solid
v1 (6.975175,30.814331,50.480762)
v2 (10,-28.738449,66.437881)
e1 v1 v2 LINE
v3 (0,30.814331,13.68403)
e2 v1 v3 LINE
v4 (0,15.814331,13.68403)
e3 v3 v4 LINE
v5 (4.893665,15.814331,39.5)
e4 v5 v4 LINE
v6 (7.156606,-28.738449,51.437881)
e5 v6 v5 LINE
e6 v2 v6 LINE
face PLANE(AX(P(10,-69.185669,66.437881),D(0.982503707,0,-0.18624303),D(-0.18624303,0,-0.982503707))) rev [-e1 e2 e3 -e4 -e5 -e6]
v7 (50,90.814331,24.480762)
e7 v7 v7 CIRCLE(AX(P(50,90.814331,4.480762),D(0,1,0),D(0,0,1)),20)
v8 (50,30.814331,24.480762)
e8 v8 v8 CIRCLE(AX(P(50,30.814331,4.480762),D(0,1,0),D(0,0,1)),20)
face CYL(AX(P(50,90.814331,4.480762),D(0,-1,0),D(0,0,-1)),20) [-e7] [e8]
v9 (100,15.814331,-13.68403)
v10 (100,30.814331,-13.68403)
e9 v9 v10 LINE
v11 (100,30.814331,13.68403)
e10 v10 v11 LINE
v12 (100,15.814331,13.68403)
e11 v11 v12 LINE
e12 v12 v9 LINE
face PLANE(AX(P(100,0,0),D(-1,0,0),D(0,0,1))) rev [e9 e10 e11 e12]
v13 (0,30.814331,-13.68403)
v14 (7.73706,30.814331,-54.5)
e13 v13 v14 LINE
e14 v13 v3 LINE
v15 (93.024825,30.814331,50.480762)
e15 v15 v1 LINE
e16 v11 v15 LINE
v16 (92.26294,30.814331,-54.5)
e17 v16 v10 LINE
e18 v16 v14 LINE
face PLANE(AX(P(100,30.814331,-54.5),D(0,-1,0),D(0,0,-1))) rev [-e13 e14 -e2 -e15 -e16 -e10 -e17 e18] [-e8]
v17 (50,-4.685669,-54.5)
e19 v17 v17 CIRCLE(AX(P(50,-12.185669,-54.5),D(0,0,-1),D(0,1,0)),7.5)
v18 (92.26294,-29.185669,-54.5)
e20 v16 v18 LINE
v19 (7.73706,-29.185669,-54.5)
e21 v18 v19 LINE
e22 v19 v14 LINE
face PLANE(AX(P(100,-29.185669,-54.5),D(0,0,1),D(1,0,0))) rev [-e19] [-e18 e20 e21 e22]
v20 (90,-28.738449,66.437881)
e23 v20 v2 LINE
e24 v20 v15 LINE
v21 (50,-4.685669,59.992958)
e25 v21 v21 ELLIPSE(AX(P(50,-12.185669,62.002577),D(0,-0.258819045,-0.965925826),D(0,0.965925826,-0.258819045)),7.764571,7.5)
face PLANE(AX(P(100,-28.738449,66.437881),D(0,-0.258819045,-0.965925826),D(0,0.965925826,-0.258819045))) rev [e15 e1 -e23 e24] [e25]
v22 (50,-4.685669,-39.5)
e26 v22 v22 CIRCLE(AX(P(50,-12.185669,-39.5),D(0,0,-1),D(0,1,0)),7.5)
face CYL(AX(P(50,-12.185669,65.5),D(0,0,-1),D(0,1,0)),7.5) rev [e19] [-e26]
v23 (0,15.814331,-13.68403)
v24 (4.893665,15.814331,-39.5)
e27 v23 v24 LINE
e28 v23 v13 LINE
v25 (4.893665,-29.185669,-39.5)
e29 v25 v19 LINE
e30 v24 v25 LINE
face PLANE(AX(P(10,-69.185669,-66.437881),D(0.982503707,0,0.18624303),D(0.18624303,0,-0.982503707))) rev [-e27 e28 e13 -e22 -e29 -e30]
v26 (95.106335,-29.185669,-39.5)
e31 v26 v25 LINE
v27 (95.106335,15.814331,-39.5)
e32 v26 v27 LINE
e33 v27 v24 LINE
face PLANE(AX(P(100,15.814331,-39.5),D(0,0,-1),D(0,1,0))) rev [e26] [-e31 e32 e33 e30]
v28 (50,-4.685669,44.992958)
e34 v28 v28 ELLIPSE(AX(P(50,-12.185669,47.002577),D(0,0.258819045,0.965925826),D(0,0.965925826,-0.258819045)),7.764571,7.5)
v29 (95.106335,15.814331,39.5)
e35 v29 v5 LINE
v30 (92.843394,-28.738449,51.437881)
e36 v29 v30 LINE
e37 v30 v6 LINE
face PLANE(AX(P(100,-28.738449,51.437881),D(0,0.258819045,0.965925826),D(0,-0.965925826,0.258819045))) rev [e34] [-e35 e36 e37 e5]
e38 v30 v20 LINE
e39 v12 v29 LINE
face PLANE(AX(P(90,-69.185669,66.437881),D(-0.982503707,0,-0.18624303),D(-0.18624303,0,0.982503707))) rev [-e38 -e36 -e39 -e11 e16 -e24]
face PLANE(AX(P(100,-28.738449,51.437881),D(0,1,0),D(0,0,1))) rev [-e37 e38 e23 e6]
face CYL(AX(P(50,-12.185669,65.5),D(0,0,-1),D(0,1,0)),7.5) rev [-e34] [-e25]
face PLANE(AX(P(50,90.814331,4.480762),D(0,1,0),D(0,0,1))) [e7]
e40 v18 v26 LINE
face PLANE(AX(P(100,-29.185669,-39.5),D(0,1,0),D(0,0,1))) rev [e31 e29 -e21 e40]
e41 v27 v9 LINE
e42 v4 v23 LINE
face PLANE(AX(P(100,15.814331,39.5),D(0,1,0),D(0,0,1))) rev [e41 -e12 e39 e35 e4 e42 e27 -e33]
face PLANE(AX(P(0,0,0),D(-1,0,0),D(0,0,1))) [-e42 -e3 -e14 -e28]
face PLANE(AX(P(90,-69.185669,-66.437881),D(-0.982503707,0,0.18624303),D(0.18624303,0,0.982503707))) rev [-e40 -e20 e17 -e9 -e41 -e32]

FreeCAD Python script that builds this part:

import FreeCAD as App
import Part
import Sketcher

V = App.Vector
Q = App.Units.Quantity


def add_polygon(sketch, points):
    """Adds a closed chain of lines whose ends are joined by coincident constraints."""
    first, n = sketch.GeometryCount, len(points)
    for a, b in zip(points, points[1:] + points[:1]):
        sketch.addGeometry(Part.LineSegment(App.Vector(*a, 0), App.Vector(*b, 0)), False)
    for i in range(n):
        sketch.addConstraint(Sketcher.Constraint("Coincident", first + i, 2, first + (i + 1) % n, 1))

doc = App.newDocument("Part")
body = doc.addObject("PartDesign::Body", "Body")

# Sketch on YZ plane
sketch1 = doc.addObject("Sketcher::SketchObject", "Sketch")
body.addObject(sketch1)
sketch1.AttachmentSupport = (doc.YZ_Plane, [""])
sketch1.MapMode = "FlatFace"
add_polygon(sketch1, [(-29, 51), (16, 40), (16, -40), (-29, -40), (-29, -54), (31, -54), (31, 50), (-29, 66)])  # lines 0-7
sketch1.addConstraint([
    Sketcher.Constraint("Vertical", 1),
    Sketcher.Constraint("Horizontal", 2),
    Sketcher.Constraint("Vertical", 3),
    Sketcher.Constraint("Horizontal", 4),
    Sketcher.Constraint("Vertical", 5),
    Sketcher.Constraint("Vertical", 7),
    Sketcher.Constraint("Parallel", 0, 6),
    Sketcher.Constraint("Equal", 3, 7),
    Sketcher.Constraint("DistanceX", 2, 2, 2, 1, 45.0),
    Sketcher.Constraint("DistanceX", 4, 1, 4, 2, 60.0),
    Sketcher.Constraint("DistanceY", 1, 2, 1, 1, 79.0),
    Sketcher.Constraint("DistanceY", 3, 2, 3, 1, 15.0),
    Sketcher.Constraint("Angle", 0, Q("-15 deg")),
    Sketcher.Constraint("DistanceY", -1, 1, 0, 2, 39.5),
    Sketcher.Constraint("Distance", 0, 46.124432),
    Sketcher.Constraint("DistanceX", -1, 1, 0, 2, 15.814331),
])
pad1 = doc.addObject("PartDesign::Pad", "Pad")
body.addObject(pad1)
pad1.Profile = sketch1
pad1.Length = 100

# Sketch on XY plane
sketch2 = doc.addObject("Sketcher::SketchObject", "Sketch001")
body.addObject(sketch2)
sketch2.AttachmentSupport = (doc.XY_Plane, [""])
sketch2.MapMode = "FlatFace"
sketch2.AttachmentOffset = App.Placement(V(0, 0, -54.5), App.Rotation())
sketch2.addGeometry(Part.Circle(V(50, -12, 0), V(0, 0, 1), 8), False)
sketch2.addConstraint([
    Sketcher.Constraint("Diameter", 0, 15.0),
    Sketcher.Constraint("DistanceX", -1, 1, 0, 3, 50.0),
    Sketcher.Constraint("DistanceY", 0, 3, -1, 1, 12.185669),
])
pocket1 = doc.addObject("PartDesign::Pocket", "Pocket")
body.addObject(pocket1)
pocket1.Profile = sketch2
pocket1.Length = 120
pocket1.Reversed = True

# Sketch on XZ plane
sketch3 = doc.addObject("Sketcher::SketchObject", "Sketch002")
body.addObject(sketch3)
sketch3.AttachmentSupport = (doc.XZ_Plane, [""])
sketch3.MapMode = "FlatFace"
sketch3.AttachmentOffset = App.Placement(V(0, 0, -30.814331), App.Rotation())
add_polygon(sketch3, [(10, 66), (0, 14), (-18, 14), (-18, 72)])  # lines 0-3
add_polygon(sketch3, [(10, -66), (-18, -72), (-18, -14), (0, -14)])  # lines 4-7
add_polygon(sketch3, [(90, -66), (100, -14), (118, -14), (118, -72)])  # lines 8-11
add_polygon(sketch3, [(90, 66), (118, 72), (118, 14), (100, 14)])  # lines 12-15
sketch3.addConstraint([
    Sketcher.Constraint("Horizontal", 1),
    Sketcher.Constraint("Vertical", 2),
    Sketcher.Constraint("Vertical", 5),
    Sketcher.Constraint("Horizontal", 6),
    Sketcher.Constraint("Horizontal", 9),
    Sketcher.Constraint("Vertical", 10),
    Sketcher.Constraint("Vertical", 13),
    Sketcher.Constraint("Horizontal", 14),
    Sketcher.Constraint("Symmetric", 0, 2, 6, 2, -1, 1),
    Sketcher.Constraint("Symmetric", 2, 2, 4, 2, -1),
    Sketcher.Constraint("Symmetric", 3, 2, 7, 2, -1),
    Sketcher.Constraint("Symmetric", 10, 2, 12, 2, -1),
    Sketcher.Constraint("Symmetric", 8, 2, 14, 2, -1),
    Sketcher.Constraint("Symmetric", 11, 2, 15, 2, -1),
    Sketcher.Constraint("PointOnObject", 0, 2, -2),
    Sketcher.Constraint("Parallel", 0, 8),
    Sketcher.Constraint("Parallel", 3, 11),
    Sketcher.Constraint("Horizontal", 6, 2, 8, 2),
    Sketcher.Constraint("Horizontal", 4, 2, 10, 2),
    Sketcher.Constraint("Horizontal", 7, 2, 11, 2),
    Sketcher.Constraint("DistanceX", -1, 1, 3, 2, 10.0),
    Sketcher.Constraint("DistanceX", -1, 1, 8, 2, 100.0),
    Sketcher.Constraint("DistanceX", 1, 2, 1, 1, 18.365032),
    Sketcher.Constraint("DistanceY", 2, 1, 2, 2, 58.423757),
    Sketcher.Constraint("DistanceY", -1, 1, 0, 2, 13.68403),
    Sketcher.Constraint("DistanceY", -1, 1, 3, 2, 66.437881),
])
pocket2 = doc.addObject("PartDesign::Pocket", "Pocket001")
body.addObject(pocket2)
pocket2.Profile = sketch3
pocket2.Length = 100
pocket2.Reversed = True

# Sketch on XZ plane
sketch4 = doc.addObject("Sketcher::SketchObject", "Sketch003")
body.addObject(sketch4)
sketch4.AttachmentSupport = (doc.XZ_Plane, [""])
sketch4.MapMode = "FlatFace"
sketch4.AttachmentOffset = App.Placement(V(0, 0, -30.814331), App.Rotation())
sketch4.addGeometry(Part.Circle(V(50, 4, 0), V(0, 0, 1), 20), False)
sketch4.addConstraint([
    Sketcher.Constraint("Diameter", 0, 40.0),
    Sketcher.Constraint("DistanceX", -1, 1, 0, 3, 50.0),
    Sketcher.Constraint("DistanceY", -1, 1, 0, 3, 4.480762),
])
pad2 = doc.addObject("PartDesign::Pad", "Pad001")
body.addObject(pad2)
pad2.Profile = sketch4
pad2.Length = 60
pad2.Reversed = True

doc.recompute()
